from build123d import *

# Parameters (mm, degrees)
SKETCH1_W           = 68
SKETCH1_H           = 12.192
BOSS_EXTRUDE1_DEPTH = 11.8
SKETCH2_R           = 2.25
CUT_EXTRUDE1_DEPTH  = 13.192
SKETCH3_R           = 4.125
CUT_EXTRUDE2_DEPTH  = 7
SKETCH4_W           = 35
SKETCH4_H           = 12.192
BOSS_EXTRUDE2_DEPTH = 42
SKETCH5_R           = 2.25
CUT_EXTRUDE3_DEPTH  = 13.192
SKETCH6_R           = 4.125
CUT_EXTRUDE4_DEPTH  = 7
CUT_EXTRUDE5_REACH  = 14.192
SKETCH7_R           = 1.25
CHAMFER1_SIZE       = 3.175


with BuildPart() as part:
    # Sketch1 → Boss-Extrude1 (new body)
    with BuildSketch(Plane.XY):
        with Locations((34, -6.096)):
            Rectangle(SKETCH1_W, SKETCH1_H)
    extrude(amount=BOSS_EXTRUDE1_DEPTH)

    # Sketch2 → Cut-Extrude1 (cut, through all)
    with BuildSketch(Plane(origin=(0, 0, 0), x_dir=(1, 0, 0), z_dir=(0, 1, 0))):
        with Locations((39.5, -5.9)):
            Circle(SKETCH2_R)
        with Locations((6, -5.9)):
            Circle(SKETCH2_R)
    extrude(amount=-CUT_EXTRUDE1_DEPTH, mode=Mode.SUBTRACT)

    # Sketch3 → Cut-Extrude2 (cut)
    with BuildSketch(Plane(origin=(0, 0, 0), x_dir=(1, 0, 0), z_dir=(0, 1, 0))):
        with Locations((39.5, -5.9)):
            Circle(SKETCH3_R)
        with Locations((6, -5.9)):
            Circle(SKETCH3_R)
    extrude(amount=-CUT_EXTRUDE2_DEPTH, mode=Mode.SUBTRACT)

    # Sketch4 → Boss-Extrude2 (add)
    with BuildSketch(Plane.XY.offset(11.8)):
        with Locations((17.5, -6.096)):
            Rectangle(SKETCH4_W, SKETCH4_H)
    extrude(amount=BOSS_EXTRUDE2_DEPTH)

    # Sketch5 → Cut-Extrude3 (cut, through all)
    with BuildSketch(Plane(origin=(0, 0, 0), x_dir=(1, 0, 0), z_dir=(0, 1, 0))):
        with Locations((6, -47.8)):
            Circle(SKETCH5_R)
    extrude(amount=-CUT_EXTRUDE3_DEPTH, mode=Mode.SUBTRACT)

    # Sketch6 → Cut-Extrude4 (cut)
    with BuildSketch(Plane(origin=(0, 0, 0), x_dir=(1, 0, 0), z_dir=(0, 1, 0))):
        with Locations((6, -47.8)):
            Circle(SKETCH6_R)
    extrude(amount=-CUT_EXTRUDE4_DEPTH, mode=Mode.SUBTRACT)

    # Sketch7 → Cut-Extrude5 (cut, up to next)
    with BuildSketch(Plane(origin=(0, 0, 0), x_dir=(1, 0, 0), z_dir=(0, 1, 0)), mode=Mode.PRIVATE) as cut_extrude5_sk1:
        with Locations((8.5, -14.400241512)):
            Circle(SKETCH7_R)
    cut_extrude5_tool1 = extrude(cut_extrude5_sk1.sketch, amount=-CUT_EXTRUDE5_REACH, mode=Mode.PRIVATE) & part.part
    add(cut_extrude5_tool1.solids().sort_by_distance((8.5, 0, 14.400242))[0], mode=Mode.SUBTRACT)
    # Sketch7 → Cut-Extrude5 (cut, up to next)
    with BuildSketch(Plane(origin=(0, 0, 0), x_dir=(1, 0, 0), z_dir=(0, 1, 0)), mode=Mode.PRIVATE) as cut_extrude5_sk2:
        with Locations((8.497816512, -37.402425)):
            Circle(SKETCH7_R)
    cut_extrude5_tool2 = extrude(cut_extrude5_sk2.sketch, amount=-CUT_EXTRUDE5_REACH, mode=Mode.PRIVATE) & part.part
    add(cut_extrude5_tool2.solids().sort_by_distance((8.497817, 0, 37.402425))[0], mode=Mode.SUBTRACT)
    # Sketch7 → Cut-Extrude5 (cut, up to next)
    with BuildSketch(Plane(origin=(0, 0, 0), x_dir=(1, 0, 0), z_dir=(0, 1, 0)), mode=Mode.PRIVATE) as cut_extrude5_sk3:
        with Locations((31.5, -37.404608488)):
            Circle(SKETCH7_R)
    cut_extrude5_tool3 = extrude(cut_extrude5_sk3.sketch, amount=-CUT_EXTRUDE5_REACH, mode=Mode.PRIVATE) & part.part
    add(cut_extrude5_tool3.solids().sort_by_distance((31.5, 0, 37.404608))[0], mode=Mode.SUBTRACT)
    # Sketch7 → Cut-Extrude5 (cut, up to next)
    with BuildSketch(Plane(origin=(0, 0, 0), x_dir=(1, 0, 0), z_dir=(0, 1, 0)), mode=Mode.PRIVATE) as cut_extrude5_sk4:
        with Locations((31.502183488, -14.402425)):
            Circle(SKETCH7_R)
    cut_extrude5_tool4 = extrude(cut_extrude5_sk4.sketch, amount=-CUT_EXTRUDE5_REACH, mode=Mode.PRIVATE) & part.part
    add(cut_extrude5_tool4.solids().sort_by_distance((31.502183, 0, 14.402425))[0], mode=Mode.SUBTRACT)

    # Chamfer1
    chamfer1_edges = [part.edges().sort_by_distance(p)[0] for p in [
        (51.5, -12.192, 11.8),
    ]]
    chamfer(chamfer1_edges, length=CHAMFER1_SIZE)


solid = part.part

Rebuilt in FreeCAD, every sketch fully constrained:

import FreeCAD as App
import Part
import Sketcher

V = App.Vector
Q = App.Units.Quantity


def edges_at(feature, points):
    """Names of the edges that pass closest to the given points."""
    edges = feature.Shape.Edges
    near = lambda p: min(range(len(edges)), key=lambda i: edges[i].distToShape(Part.Vertex(*p))[0])
    return sorted({f"Edge{near(p) + 1}" for p in points})


def add_polygon(sketch, points):
    """Adds a closed chain of lines whose ends are joined by coincident constraints."""
    first, n = sketch.GeometryCount, len(points)
    for a, b in zip(points, points[1:] + points[:1]):
        sketch.addGeometry(Part.LineSegment(App.Vector(*a, 0), App.Vector(*b, 0)), False)
    for i in range(n):
        sketch.addConstraint(Sketcher.Constraint("Coincident", first + i, 2, first + (i + 1) % n, 1))

doc = App.newDocument("Part")
body = doc.addObject("PartDesign::Body", "Body")

sketch1 = body.newObject("Sketcher::SketchObject", "Sketch")
sketch1.AttachmentSupport = (doc.getObject("XY_Plane"), [""])
sketch1.MapMode = "FlatFace"
add_polygon(sketch1, [(0, 0), (0, -12), (68, -12), (68, 0)])
sketch1.addConstraint([
    Sketcher.Constraint("Vertical", 0),
    Sketcher.Constraint("Horizontal", 1),
    Sketcher.Constraint("Vertical", 2),
    Sketcher.Constraint("Horizontal", 3),
    Sketcher.Constraint("Coincident", 3, 2, -1, 1),
    Sketcher.Constraint("DistanceX", 1, 1, 1, 2, Q("68 mm")),
    Sketcher.Constraint("DistanceY", 0, 2, 0, 1, Q("12.192 mm")),
])
pad1 = body.newObject("PartDesign::Pad", "Pad")
pad1.Profile = sketch1
pad1.Length = 11.8

sketch2 = body.newObject("Sketcher::SketchObject", "Sketch001")
sketch2.AttachmentSupport = (doc.getObject("XZ_Plane"), [""])
sketch2.MapMode = "FlatFace"
sketch2.addGeometry([
    Part.Circle(V(39.5, 5.9, 0), V(0, 0, 1), 2.2),
    Part.Circle(V(6, 5.9, 0), V(0, 0, 1), 2.2),
], False)
sketch2.addConstraint([
    Sketcher.Constraint("Equal", 0, 1),
    Sketcher.Constraint("Horizontal", 0, 3, 1, 3),
    Sketcher.Constraint("Diameter", 0, Q("4.5 mm")),
    Sketcher.Constraint("DistanceX", -1, 1, 1, 3, Q("6 mm")),
    Sketcher.Constraint("DistanceX", -1, 1, 0, 3, Q("39.5 mm")),
    Sketcher.Constraint("DistanceY", -1, 1, 0, 3, Q("5.9 mm")),
])
pocket1 = body.newObject("PartDesign::Pocket", "Pocket")
pocket1.Profile = sketch2
pocket1.Type = "ThroughAll"
pocket1.Reversed = True

sketch3 = body.newObject("Sketcher::SketchObject", "Sketch002")
sketch3.AttachmentSupport = (doc.getObject("XZ_Plane"), [""])
sketch3.MapMode = "FlatFace"
sketch3.addGeometry([
    Part.Circle(V(39.5, 5.9, 0), V(0, 0, 1), 4.1),
    Part.Circle(V(6, 5.9, 0), V(0, 0, 1), 4.1),
], False)
sketch3.addConstraint([
    Sketcher.Constraint("Equal", 0, 1),
    Sketcher.Constraint("Horizontal", 0, 3, 1, 3),
    Sketcher.Constraint("Diameter", 0, Q("8.25 mm")),
    Sketcher.Constraint("DistanceX", -1, 1, 1, 3, Q("6 mm")),
    Sketcher.Constraint("DistanceX", -1, 1, 0, 3, Q("39.5 mm")),
    Sketcher.Constraint("DistanceY", -1, 1, 0, 3, Q("5.9 mm")),
])
pocket2 = body.newObject("PartDesign::Pocket", "Pocket001")
pocket2.Profile = sketch3
pocket2.Length = 7
pocket2.Reversed = True

sketch4 = body.newObject("Sketcher::SketchObject", "Sketch003")
sketch4.AttachmentSupport = (doc.getObject("XY_Plane"), [""])
sketch4.MapMode = "FlatFace"
sketch4.AttachmentOffset = App.Placement(V(0, 0, 11.8), App.Rotation())
add_polygon(sketch4, [(0, 0), (0, -12), (35, -12), (35, 0)])
sketch4.addConstraint([
    Sketcher.Constraint("Vertical", 0),
    Sketcher.Constraint("Horizontal", 1),
    Sketcher.Constraint("Vertical", 2),
    Sketcher.Constraint("Horizontal", 3),
    Sketcher.Constraint("Coincident", 3, 2, -1, 1),
    Sketcher.Constraint("DistanceX", 1, 1, 1, 2, Q("35 mm")),
    Sketcher.Constraint("DistanceY", 0, 2, 0, 1, Q("12.192 mm")),
])
pad2 = body.newObject("PartDesign::Pad", "Pad001")
pad2.Profile = sketch4
pad2.Length = 42

sketch5 = body.newObject("Sketcher::SketchObject", "Sketch004")
sketch5.AttachmentSupport = (doc.getObject("XZ_Plane"), [""])
sketch5.MapMode = "FlatFace"
sketch5.addGeometry(Part.Circle(V(6, 47.8, 0), V(0, 0, 1), 2.2), False)
sketch5.addConstraint([
    Sketcher.Constraint("Diameter", 0, Q("4.5 mm")),
    Sketcher.Constraint("DistanceX", -1, 1, 0, 3, Q("6 mm")),
    Sketcher.Constraint("DistanceY", -1, 1, 0, 3, Q("47.8 mm")),
])
pocket3 = body.newObject("PartDesign::Pocket", "Pocket002")
pocket3.Profile = sketch5
pocket3.Type = "ThroughAll"
pocket3.Reversed = True

sketch6 = body.newObject("Sketcher::SketchObject", "Sketch005")
sketch6.AttachmentSupport = (doc.getObject("XZ_Plane"), [""])
sketch6.MapMode = "FlatFace"
sketch6.addGeometry(Part.Circle(V(6, 47.8, 0), V(0, 0, 1), 4.1), False)
sketch6.addConstraint([
    Sketcher.Constraint("Diameter", 0, Q("8.25 mm")),
    Sketcher.Constraint("DistanceX", -1, 1, 0, 3, Q("6 mm")),
    Sketcher.Constraint("DistanceY", -1, 1, 0, 3, Q("47.8 mm")),
])
pocket4 = body.newObject("PartDesign::Pocket", "Pocket003")
pocket4.Profile = sketch6
pocket4.Length = 7
pocket4.Reversed = True

sketch7 = body.newObject("Sketcher::SketchObject", "Sketch006")
sketch7.AttachmentSupport = (doc.getObject("XZ_Plane"), [""])
sketch7.MapMode = "FlatFace"
sketch7.addGeometry(Part.Circle(V(8.5, 14.4, 0), V(0, 0, 1), 1.2), False)
sketch7.addConstraint([
    Sketcher.Constraint("Diameter", 0, Q("2.5 mm")),
    Sketcher.Constraint("DistanceX", -1, 1, 0, 3, Q("8.5 mm")),
    Sketcher.Constraint("DistanceY", -1, 1, 0, 3, Q("14.400242 mm")),
])
pocket5 = body.newObject("PartDesign::Pocket", "Pocket004")
pocket5.Profile = sketch7
pocket5.Type = "UpToFirst"
pocket5.Reversed = True

sketch8 = body.newObject("Sketcher::SketchObject", "Sketch007")
sketch8.AttachmentSupport = (doc.getObject("XZ_Plane"), [""])
sketch8.MapMode = "FlatFace"
sketch8.addGeometry(Part.Circle(V(8.5, 37.4, 0), V(0, 0, 1), 1.2), False)
sketch8.addConstraint([
    Sketcher.Constraint("Diameter", 0, Q("2.5 mm")),
    Sketcher.Constraint("DistanceX", -1, 1, 0, 3, Q("8.497817 mm")),
    Sketcher.Constraint("DistanceY", -1, 1, 0, 3, Q("37.402425 mm")),
])
pocket6 = body.newObject("PartDesign::Pocket", "Pocket005")
pocket6.Profile = sketch8
pocket6.Type = "UpToFirst"
pocket6.Reversed = True

sketch9 = body.newObject("Sketcher::SketchObject", "Sketch008")
sketch9.AttachmentSupport = (doc.getObject("XZ_Plane"), [""])
sketch9.MapMode = "FlatFace"
sketch9.addGeometry(Part.Circle(V(31.5, 37.4, 0), V(0, 0, 1), 1.2), False)
sketch9.addConstraint([
    Sketcher.Constraint("Diameter", 0, Q("2.5 mm")),
    Sketcher.Constraint("DistanceX", -1, 1, 0, 3, Q("31.5 mm")),
    Sketcher.Constraint("DistanceY", -1, 1, 0, 3, Q("37.404608 mm")),
])
pocket7 = body.newObject("PartDesign::Pocket", "Pocket006")
pocket7.Profile = sketch9
pocket7.Type = "UpToFirst"
pocket7.Reversed = True

sketch10 = body.newObject("Sketcher::SketchObject", "Sketch009")
sketch10.AttachmentSupport = (doc.getObject("XZ_Plane"), [""])
sketch10.MapMode = "FlatFace"
sketch10.addGeometry(Part.Circle(V(31.5, 14.4, 0), V(0, 0, 1), 1.2), False)
sketch10.addConstraint([
    Sketcher.Constraint("Diameter", 0, Q("2.5 mm")),
    Sketcher.Constraint("DistanceX", -1, 1, 0, 3, Q("31.502183 mm")),
    Sketcher.Constraint("DistanceY", -1, 1, 0, 3, Q("14.402425 mm")),
])
pocket8 = body.newObject("PartDesign::Pocket", "Pocket007")
pocket8.Profile = sketch10
pocket8.Type = "UpToFirst"
pocket8.Reversed = True
doc.recompute()

chamfer = body.newObject("PartDesign::Chamfer", "Chamfer")
chamfer.Base = (pocket8, edges_at(pocket8, [(51.5, -12.192, 11.8)]))
chamfer.Size = 3.175

doc.recompute()
